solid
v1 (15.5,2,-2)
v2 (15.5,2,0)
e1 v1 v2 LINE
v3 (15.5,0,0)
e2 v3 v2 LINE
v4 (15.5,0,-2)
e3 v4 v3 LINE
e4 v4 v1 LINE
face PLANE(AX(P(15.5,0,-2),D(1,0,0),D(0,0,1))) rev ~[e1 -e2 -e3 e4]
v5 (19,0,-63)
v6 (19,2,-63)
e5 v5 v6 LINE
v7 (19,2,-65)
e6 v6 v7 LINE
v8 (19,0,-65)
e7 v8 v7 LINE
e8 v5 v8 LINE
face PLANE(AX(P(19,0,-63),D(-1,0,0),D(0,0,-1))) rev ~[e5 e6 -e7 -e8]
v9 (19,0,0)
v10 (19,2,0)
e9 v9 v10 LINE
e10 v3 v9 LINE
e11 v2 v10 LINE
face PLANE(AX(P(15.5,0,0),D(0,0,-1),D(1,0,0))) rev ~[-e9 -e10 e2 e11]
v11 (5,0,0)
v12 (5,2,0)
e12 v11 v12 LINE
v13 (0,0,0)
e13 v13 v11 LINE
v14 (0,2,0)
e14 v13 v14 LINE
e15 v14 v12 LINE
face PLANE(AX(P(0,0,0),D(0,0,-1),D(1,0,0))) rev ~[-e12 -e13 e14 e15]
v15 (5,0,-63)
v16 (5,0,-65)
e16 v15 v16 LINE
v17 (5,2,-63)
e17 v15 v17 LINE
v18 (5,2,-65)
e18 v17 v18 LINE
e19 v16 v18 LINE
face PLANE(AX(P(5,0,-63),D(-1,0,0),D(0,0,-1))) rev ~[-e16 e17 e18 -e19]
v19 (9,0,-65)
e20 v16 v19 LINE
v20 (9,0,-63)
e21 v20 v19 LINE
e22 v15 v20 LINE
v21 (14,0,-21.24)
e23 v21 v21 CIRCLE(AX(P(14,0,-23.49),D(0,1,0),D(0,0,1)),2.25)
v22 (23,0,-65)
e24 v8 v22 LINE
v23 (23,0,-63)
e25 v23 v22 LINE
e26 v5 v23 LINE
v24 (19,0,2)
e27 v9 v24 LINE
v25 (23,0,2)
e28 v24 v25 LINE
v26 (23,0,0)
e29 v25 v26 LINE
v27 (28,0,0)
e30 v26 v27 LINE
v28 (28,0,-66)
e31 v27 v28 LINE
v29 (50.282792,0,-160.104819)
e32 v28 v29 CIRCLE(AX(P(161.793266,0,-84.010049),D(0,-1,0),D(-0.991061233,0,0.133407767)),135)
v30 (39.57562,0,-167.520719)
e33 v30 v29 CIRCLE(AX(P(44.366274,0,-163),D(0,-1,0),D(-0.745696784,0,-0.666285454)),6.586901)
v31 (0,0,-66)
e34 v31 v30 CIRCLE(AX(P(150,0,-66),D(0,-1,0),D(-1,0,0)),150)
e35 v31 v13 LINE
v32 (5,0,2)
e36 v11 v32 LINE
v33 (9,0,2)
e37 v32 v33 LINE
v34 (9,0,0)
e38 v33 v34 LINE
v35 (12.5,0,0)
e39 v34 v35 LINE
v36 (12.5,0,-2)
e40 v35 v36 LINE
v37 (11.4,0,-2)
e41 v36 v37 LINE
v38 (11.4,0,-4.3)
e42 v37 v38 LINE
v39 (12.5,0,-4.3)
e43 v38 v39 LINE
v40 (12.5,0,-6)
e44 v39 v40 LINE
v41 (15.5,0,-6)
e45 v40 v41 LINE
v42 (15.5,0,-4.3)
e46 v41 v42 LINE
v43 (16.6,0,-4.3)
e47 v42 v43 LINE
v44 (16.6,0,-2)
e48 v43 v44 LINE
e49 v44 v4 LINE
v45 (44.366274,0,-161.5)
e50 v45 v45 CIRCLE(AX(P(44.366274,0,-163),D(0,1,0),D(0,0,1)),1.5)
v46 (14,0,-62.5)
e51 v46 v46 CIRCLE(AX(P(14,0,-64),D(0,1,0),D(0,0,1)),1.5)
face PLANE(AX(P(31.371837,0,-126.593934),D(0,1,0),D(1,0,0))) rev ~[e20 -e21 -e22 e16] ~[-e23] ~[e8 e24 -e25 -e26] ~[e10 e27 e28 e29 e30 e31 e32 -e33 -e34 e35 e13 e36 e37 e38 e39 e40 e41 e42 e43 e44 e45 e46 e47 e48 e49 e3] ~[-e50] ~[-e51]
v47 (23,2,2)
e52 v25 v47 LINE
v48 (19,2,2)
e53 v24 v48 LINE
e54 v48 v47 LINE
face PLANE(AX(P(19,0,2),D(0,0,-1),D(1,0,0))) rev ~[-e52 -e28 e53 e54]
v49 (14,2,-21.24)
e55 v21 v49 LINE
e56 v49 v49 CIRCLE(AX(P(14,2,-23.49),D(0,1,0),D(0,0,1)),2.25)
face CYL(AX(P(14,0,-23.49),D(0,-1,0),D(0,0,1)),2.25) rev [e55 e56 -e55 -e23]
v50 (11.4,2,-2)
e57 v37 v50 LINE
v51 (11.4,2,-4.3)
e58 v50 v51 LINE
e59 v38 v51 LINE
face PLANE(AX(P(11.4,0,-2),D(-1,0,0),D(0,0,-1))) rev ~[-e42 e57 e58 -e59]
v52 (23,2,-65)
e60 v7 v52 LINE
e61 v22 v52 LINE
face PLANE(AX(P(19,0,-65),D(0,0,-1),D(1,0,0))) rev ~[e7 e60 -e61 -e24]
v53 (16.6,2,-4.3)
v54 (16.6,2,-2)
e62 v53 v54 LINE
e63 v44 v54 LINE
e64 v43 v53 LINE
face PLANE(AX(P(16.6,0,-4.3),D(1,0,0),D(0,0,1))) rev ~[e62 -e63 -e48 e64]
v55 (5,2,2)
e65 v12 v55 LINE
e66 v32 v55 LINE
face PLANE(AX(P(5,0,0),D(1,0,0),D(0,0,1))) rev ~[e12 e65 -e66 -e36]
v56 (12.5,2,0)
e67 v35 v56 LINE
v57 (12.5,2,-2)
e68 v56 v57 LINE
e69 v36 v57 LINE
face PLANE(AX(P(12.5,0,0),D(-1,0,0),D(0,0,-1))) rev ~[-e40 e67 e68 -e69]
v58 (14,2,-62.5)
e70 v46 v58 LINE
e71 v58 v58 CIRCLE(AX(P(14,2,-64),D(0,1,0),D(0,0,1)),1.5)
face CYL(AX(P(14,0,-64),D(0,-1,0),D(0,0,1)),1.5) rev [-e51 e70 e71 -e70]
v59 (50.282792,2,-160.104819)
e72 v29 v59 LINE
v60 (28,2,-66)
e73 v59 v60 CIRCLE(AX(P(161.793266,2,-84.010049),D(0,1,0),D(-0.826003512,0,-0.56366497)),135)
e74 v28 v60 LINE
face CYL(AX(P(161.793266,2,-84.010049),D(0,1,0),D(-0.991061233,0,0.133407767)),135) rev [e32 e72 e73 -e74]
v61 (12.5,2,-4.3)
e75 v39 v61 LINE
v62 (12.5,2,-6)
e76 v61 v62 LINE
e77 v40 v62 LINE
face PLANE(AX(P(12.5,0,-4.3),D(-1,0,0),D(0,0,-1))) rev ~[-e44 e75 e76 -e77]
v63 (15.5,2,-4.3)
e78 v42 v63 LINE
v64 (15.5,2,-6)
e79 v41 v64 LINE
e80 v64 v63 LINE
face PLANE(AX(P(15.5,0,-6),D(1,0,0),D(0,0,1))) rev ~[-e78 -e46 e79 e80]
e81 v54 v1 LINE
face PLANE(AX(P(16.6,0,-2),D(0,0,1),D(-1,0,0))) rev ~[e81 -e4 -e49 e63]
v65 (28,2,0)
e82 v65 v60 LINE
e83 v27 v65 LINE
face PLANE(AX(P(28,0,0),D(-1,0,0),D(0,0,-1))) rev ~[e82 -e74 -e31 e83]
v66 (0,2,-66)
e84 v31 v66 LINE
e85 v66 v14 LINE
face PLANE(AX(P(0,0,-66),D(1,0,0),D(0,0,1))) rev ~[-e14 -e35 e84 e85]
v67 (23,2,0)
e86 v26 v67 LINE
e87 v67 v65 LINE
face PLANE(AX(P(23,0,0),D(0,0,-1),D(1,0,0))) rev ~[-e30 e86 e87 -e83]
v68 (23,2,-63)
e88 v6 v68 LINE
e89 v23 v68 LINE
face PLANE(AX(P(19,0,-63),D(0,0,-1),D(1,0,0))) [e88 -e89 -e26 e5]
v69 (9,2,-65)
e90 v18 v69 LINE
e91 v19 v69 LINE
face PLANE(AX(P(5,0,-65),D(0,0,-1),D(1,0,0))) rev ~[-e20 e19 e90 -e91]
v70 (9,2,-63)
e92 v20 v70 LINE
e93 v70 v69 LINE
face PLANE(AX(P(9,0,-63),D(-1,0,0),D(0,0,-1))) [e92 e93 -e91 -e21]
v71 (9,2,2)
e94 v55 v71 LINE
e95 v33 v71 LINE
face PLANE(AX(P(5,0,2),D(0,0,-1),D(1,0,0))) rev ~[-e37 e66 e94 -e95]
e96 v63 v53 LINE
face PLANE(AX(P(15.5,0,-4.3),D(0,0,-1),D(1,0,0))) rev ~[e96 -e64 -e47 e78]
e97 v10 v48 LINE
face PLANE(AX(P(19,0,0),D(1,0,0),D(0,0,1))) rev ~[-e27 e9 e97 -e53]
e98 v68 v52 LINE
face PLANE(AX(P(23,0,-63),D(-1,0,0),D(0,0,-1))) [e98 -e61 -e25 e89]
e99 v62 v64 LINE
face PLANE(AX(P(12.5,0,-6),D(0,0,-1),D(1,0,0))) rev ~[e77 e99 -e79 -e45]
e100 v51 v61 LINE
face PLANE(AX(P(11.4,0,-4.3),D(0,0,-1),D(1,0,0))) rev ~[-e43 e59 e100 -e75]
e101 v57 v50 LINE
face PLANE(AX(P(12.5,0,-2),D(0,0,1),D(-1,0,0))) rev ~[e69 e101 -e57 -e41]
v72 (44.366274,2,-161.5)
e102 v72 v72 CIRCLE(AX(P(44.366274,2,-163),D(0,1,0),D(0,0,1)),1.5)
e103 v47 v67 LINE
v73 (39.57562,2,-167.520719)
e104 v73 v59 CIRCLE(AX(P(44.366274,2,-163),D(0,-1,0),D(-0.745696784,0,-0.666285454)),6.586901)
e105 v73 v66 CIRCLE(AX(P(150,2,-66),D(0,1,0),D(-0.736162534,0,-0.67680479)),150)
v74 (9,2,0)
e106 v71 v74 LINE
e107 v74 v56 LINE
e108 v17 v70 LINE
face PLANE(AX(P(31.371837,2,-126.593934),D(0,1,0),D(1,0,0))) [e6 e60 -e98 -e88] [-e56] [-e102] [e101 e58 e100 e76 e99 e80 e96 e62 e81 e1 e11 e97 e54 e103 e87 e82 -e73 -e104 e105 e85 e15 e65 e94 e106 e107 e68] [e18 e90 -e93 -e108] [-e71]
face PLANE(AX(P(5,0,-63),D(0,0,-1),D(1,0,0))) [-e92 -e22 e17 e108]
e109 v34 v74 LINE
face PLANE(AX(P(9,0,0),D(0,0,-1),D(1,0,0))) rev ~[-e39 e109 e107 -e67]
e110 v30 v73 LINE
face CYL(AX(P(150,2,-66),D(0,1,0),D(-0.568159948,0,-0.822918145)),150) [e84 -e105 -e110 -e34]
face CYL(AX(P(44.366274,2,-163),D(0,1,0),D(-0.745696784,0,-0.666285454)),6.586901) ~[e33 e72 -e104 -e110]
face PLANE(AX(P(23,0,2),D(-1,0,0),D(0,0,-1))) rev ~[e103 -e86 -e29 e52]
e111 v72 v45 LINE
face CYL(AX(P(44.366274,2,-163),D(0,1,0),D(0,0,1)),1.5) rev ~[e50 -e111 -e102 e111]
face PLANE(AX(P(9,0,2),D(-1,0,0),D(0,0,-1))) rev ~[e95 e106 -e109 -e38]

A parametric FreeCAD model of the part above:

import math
import FreeCAD as App
import Part
import Sketcher

V = App.Vector
Q = App.Units.Quantity

doc = App.newDocument("Part")
body = doc.addObject("PartDesign::Body", "Body")

# Sketch on XZ plane
sketch1 = body.newObject("Sketcher::SketchObject", "Sketch")
sketch1.AttachmentSupport = (doc.getObject("XZ_Plane"), [""])
sketch1.MapMode = "FlatFace"
sketch1.addGeometry(Part.LineSegment(V(0, 0, 0), V(5, 0, 0)), False)
sketch1.addGeometry(Part.LineSegment(V(5, 0, 0), V(5, 2, 0)), False)
sketch1.addGeometry(Part.LineSegment(V(5, 2, 0), V(9, 2, 0)), False)
sketch1.addGeometry(Part.LineSegment(V(9, 2, 0), V(9, 0, 0)), False)
sketch1.addGeometry(Part.LineSegment(V(9, 0, 0), V(12.5, 0, 0)), False)
sketch1.addGeometry(Part.LineSegment(V(12.5, 0, 0), V(12.5, -2, 0)), False)
sketch1.addGeometry(Part.LineSegment(V(12.5, -2, 0), V(11.4, -2, 0)), False)
sketch1.addGeometry(Part.LineSegment(V(11.4, -2, 0), V(11.4, -4.3, 0)), False)
sketch1.addGeometry(Part.LineSegment(V(11.4, -4.3, 0), V(12.5, -4.3, 0)), False)
sketch1.addGeometry(Part.LineSegment(V(12.5, -4.3, 0), V(12.5, -6, 0)), False)
sketch1.addGeometry(Part.LineSegment(V(12.5, -6, 0), V(15.5, -6, 0)), False)
sketch1.addGeometry(Part.LineSegment(V(15.5, -6, 0), V(15.5, -4.3, 0)), False)
sketch1.addGeometry(Part.LineSegment(V(15.5, -4.3, 0), V(16.6, -4.3, 0)), False)
sketch1.addGeometry(Part.LineSegment(V(16.6, -4.3, 0), V(16.6, -2, 0)), False)
sketch1.addGeometry(Part.LineSegment(V(16.6, -2, 0), V(15.5, -2, 0)), False)
sketch1.addGeometry(Part.LineSegment(V(15.5, -2, 0), V(15.5, 0, 0)), False)
sketch1.addGeometry(Part.LineSegment(V(15.5, 0, 0), V(19, 0, 0)), False)
sketch1.addGeometry(Part.LineSegment(V(19, 0, 0), V(19, 2, 0)), False)
sketch1.addGeometry(Part.LineSegment(V(19, 2, 0), V(23, 2, 0)), False)
sketch1.addGeometry(Part.LineSegment(V(23, 2, 0), V(23, 0, 0)), False)
sketch1.addGeometry(Part.LineSegment(V(23, 0, 0), V(28, 0, 0)), False)
sketch1.addGeometry(Part.LineSegment(V(28, 0, 0), V(28, -66, 0)), False)
sketch1.addGeometry(Part.LineSegment(V(28, -66, 0), V(0, -66, 0)), False)
sketch1.addGeometry(Part.LineSegment(V(0, -66, 0), V(0, 0, 0)), False)
sketch1.addGeometry(Part.Circle(V(14, -23.5, 0), V(0, 0, 1), 2.2), False)
sketch1.addGeometry(Part.LineSegment(V(9, -63, 0), V(5, -63, 0)), False)
sketch1.addGeometry(Part.LineSegment(V(5, -63, 0), V(5, -65, 0)), False)
sketch1.addGeometry(Part.LineSegment(V(5, -65, 0), V(9, -65, 0)), False)
sketch1.addGeometry(Part.LineSegment(V(9, -65, 0), V(9, -63, 0)), False)
sketch1.addGeometry(Part.Circle(V(14, -64, 0), V(0, 0, 1), 1.5), False)
sketch1.addGeometry(Part.LineSegment(V(23, -63, 0), V(19, -63, 0)), False)
sketch1.addGeometry(Part.LineSegment(V(19, -63, 0), V(19, -65, 0)), False)
sketch1.addGeometry(Part.LineSegment(V(19, -65, 0), V(23, -65, 0)), False)
sketch1.addGeometry(Part.LineSegment(V(23, -65, 0), V(23, -63, 0)), False)
sketch1.addConstraint(Sketcher.Constraint("Coincident", 0, 2, 1, 1))
sketch1.addConstraint(Sketcher.Constraint("Coincident", 1, 2, 2, 1))
sketch1.addConstraint(Sketcher.Constraint("Coincident", 2, 2, 3, 1))
sketch1.addConstraint(Sketcher.Constraint("Coincident", 3, 2, 4, 1))
sketch1.addConstraint(Sketcher.Constraint("Coincident", 4, 2, 5, 1))
sketch1.addConstraint(Sketcher.Constraint("Coincident", 5, 2, 6, 1))
sketch1.addConstraint(Sketcher.Constraint("Coincident", 6, 2, 7, 1))
sketch1.addConstraint(Sketcher.Constraint("Coincident", 7, 2, 8, 1))
sketch1.addConstraint(Sketcher.Constraint("Coincident", 8, 2, 9, 1))
sketch1.addConstraint(Sketcher.Constraint("Coincident", 9, 2, 10, 1))
sketch1.addConstraint(Sketcher.Constraint("Coincident", 10, 2, 11, 1))
sketch1.addConstraint(Sketcher.Constraint("Coincident", 11, 2, 12, 1))
sketch1.addConstraint(Sketcher.Constraint("Coincident", 12, 2, 13, 1))
sketch1.addConstraint(Sketcher.Constraint("Coincident", 13, 2, 14, 1))
sketch1.addConstraint(Sketcher.Constraint("Coincident", 14, 2, 15, 1))
sketch1.addConstraint(Sketcher.Constraint("Coincident", 15, 2, 16, 1))
sketch1.addConstraint(Sketcher.Constraint("Coincident", 16, 2, 17, 1))
sketch1.addConstraint(Sketcher.Constraint("Coincident", 17, 2, 18, 1))
sketch1.addConstraint(Sketcher.Constraint("Coincident", 18, 2, 19, 1))
sketch1.addConstraint(Sketcher.Constraint("Coincident", 19, 2, 20, 1))
sketch1.addConstraint(Sketcher.Constraint("Coincident", 20, 2, 21, 1))
sketch1.addConstraint(Sketcher.Constraint("Coincident", 21, 2, 22, 1))
sketch1.addConstraint(Sketcher.Constraint("Coincident", 22, 2, 23, 1))
sketch1.addConstraint(Sketcher.Constraint("Coincident", 23, 2, 0, 1))
sketch1.addConstraint(Sketcher.Constraint("Coincident", 25, 2, 26, 1))
sketch1.addConstraint(Sketcher.Constraint("Coincident", 26, 2, 27, 1))
sketch1.addConstraint(Sketcher.Constraint("Coincident", 27, 2, 28, 1))
sketch1.addConstraint(Sketcher.Constraint("Coincident", 28, 2, 25, 1))
sketch1.addConstraint(Sketcher.Constraint("Coincident", 30, 2, 31, 1))
sketch1.addConstraint(Sketcher.Constraint("Coincident", 31, 2, 32, 1))
sketch1.addConstraint(Sketcher.Constraint("Coincident", 32, 2, 33, 1))
sketch1.addConstraint(Sketcher.Constraint("Coincident", 33, 2, 30, 1))
sketch1.addConstraint(Sketcher.Constraint("Horizontal", 0))
sketch1.addConstraint(Sketcher.Constraint("Vertical", 1))
sketch1.addConstraint(Sketcher.Constraint("Horizontal", 2))
sketch1.addConstraint(Sketcher.Constraint("Vertical", 3))
sketch1.addConstraint(Sketcher.Constraint("Horizontal", 4))
sketch1.addConstraint(Sketcher.Constraint("Vertical", 5))
sketch1.addConstraint(Sketcher.Constraint("Horizontal", 6))
sketch1.addConstraint(Sketcher.Constraint("Vertical", 7))
sketch1.addConstraint(Sketcher.Constraint("Horizontal", 8))
sketch1.addConstraint(Sketcher.Constraint("Vertical", 9))
sketch1.addConstraint(Sketcher.Constraint("Horizontal", 10))
sketch1.addConstraint(Sketcher.Constraint("Vertical", 11))
sketch1.addConstraint(Sketcher.Constraint("Horizontal", 12))
sketch1.addConstraint(Sketcher.Constraint("Vertical", 13))
sketch1.addConstraint(Sketcher.Constraint("Horizontal", 14))
sketch1.addConstraint(Sketcher.Constraint("Vertical", 15))
sketch1.addConstraint(Sketcher.Constraint("Horizontal", 16))
sketch1.addConstraint(Sketcher.Constraint("Vertical", 17))
sketch1.addConstraint(Sketcher.Constraint("Horizontal", 18))
sketch1.addConstraint(Sketcher.Constraint("Vertical", 19))
sketch1.addConstraint(Sketcher.Constraint("Horizontal", 20))
sketch1.addConstraint(Sketcher.Constraint("Vertical", 21))
sketch1.addConstraint(Sketcher.Constraint("Horizontal", 22))
sketch1.addConstraint(Sketcher.Constraint("Vertical", 23))
sketch1.addConstraint(Sketcher.Constraint("Horizontal", 25))
sketch1.addConstraint(Sketcher.Constraint("Vertical", 26))
sketch1.addConstraint(Sketcher.Constraint("Horizontal", 27))
sketch1.addConstraint(Sketcher.Constraint("Vertical", 28))
sketch1.addConstraint(Sketcher.Constraint("Horizontal", 30))
sketch1.addConstraint(Sketcher.Constraint("Vertical", 31))
sketch1.addConstraint(Sketcher.Constraint("Horizontal", 32))
sketch1.addConstraint(Sketcher.Constraint("Vertical", 33))
sketch1.addConstraint(Sketcher.Constraint("Coincident", 23, 2, -1, 1))
sketch1.addConstraint(Sketcher.Constraint("PointOnObject", 3, 2, -1))
sketch1.addConstraint(Sketcher.Constraint("PointOnObject", 15, 2, -1))
sketch1.addConstraint(Sketcher.Constraint("PointOnObject", 19, 2, -1))
sketch1.addConstraint(Sketcher.Constraint("Horizontal", 8, 2, 11, 2))
sketch1.addConstraint(Sketcher.Constraint("Horizontal", 6, 2, 13, 2))
sketch1.addConstraint(Sketcher.Constraint("Horizontal", 2, 2, 17, 2))
sketch1.addConstraint(Sketcher.Constraint("Horizontal", 28, 2, 30, 2))
sketch1.addConstraint(Sketcher.Constraint("Horizontal", 27, 2, 31, 2))
sketch1.addConstraint(Sketcher.Constraint("Vertical", 24, 3, 29, 3))
sketch1.addConstraint(Sketcher.Constraint("Vertical", 5, 2, 8, 2))
sketch1.addConstraint(Sketcher.Constraint("Vertical", 11, 2, 14, 2))
sketch1.addConstraint(Sketcher.Constraint("Vertical", 1, 2, 25, 2))
sketch1.addConstraint(Sketcher.Constraint("Vertical", 3, 2, 27, 2))
sketch1.addConstraint(Sketcher.Constraint("Vertical", 17, 2, 30, 2))
sketch1.addConstraint(Sketcher.Constraint("Vertical", 19, 2, 32, 2))
sketch1.addConstraint(Sketcher.Constraint("Equal", 8, 12))
sketch1.addConstraint(Sketcher.Constraint("Equal", 4, 16))
sketch1.addConstraint(Sketcher.Constraint("Equal", 2, 18))
sketch1.addConstraint(Sketcher.Constraint("Equal", 0, 20))
sketch1.addConstraint(Sketcher.Constraint("Equal", 3, 5))
sketch1.addConstraint(Sketcher.Constraint("Equal", 19, 26))
sketch1.addConstraint(Sketcher.Constraint("Diameter", 29, Q("3 mm")))
sketch1.addConstraint(Sketcher.Constraint("Diameter", 24, Q("4.5 mm")))
sketch1.addConstraint(Sketcher.Constraint("DistanceX", 0, 1, 0, 2, Q("5 mm")))
sketch1.addConstraint(Sketcher.Constraint("DistanceX", 2, 1, 2, 2, Q("4 mm")))
sketch1.addConstraint(Sketcher.Constraint("DistanceX", 10, 1, 10, 2, Q("3 mm")))
sketch1.addConstraint(Sketcher.Constraint("DistanceX", 22, 2, 22, 1, Q("28 mm")))
sketch1.addConstraint(Sketcher.Constraint("DistanceY", 1, 1, 1, 2, Q("2 mm")))
sketch1.addConstraint(Sketcher.Constraint("DistanceY", 21, 2, 21, 1, Q("66 mm")))
sketch1.addConstraint(Sketcher.Constraint("DistanceX", 6, 2, 6, 1, Q("1.1 mm")))
sketch1.addConstraint(Sketcher.Constraint("DistanceY", 7, 2, 7, 1, Q("2.3 mm")))
sketch1.addConstraint(Sketcher.Constraint("DistanceY", 9, 2, 9, 1, Q("1.7 mm")))
sketch1.addConstraint(Sketcher.Constraint("DistanceX", -1, 1, 24, 3, Q("14 mm")))
sketch1.addConstraint(Sketcher.Constraint("DistanceY", 29, 3, -1, 1, Q("64 mm")))
sketch1.addConstraint(Sketcher.Constraint("DistanceY", 25, 2, -1, 1, Q("63 mm")))
sketch1.addConstraint(Sketcher.Constraint("DistanceY", 24, 3, -1, 1, Q("23.49 mm")))
pad1 = body.newObject("PartDesign::Pad", "Pad")
pad1.Profile = sketch1
pad1.Length = 2
pad1.Reversed = True

# Sketch on XZ plane
sketch2 = body.newObject("Sketcher::SketchObject", "Sketch001")
sketch2.AttachmentSupport = (doc.getObject("XZ_Plane"), [""])
sketch2.MapMode = "FlatFace"
sketch2.AttachmentOffset = App.Placement(V(0, 0, -2), App.Rotation())
sketch2.addGeometry(Part.LineSegment(V(0, -66, 0), V(28, -66, 0)), False)
sketch2.addGeometry(Part.ArcOfCircle(Part.Circle(V(161.8, -84, 0), V(0, 0, 1), 135), math.radians(172), math.radians(227)), False)
sketch2.addGeometry(Part.ArcOfCircle(Part.Circle(V(67.1, -186, 0), V(0, 0, 1), 4.2), math.radians(-125), math.radians(39)), False)
sketch2.addGeometry(Part.ArcOfCircle(Part.Circle(V(150, -66, 0), V(0, 0, 1), 150), math.radians(180), math.radians(235)), False)
sketch2.addConstraint(Sketcher.Constraint("Coincident", 0, 2, 1, 1))
sketch2.addConstraint(Sketcher.Constraint("Coincident", 1, 2, 2, 2))
sketch2.addConstraint(Sketcher.Constraint("Tangent", 2, 1, 3, 2))
sketch2.addConstraint(Sketcher.Constraint("Coincident", 3, 1, 0, 1))
sketch2.addConstraint(Sketcher.Constraint("Horizontal", 0))
sketch2.addConstraint(Sketcher.Constraint("PointOnObject", 3, 1, -2))
sketch2.addConstraint(Sketcher.Constraint("Horizontal", 3, 3, 0, 2))
sketch2.addConstraint(Sketcher.Constraint("Radius", 1, Q("135 mm")))
sketch2.addConstraint(Sketcher.Constraint("Radius", 3, Q("150 mm")))
sketch2.addConstraint(Sketcher.Constraint("DistanceX", 0, 1, 0, 2, Q("28 mm")))
sketch2.addConstraint(Sketcher.Constraint("DistanceY", 2, 3, -1, 1, Q("186 mm")))
sketch2.addConstraint(Sketcher.Constraint("DistanceY", 3, 3, -1, 1, Q("66 mm")))
sketch2.addConstraint(Sketcher.Constraint("Radius", 2, Q("4.177477 mm")))
sketch2.addConstraint(Sketcher.Constraint("DistanceY", 1, 3, -1, 1, Q("84.010049 mm")))
pad2 = body.newObject("PartDesign::Pad", "Pad001")
pad2.Profile = sketch2
pad2.Length = 2

# Sketch on XZ plane
sketch3 = body.newObject("Sketcher::SketchObject", "Sketch002")
sketch3.AttachmentSupport = (doc.getObject("XZ_Plane"), [""])
sketch3.MapMode = "FlatFace"
sketch3.AttachmentOffset = App.Placement(V(0, 0, -2), App.Rotation())
sketch3.addGeometry(Part.Circle(V(44.4, -163, 0), V(0, 0, 1), 1.5), False)
sketch3.addGeometry(Part.LineSegment(V(49.3, -158.6, 0), V(90.3, -196.3, 0)), False)
sketch3.addGeometry(Part.LineSegment(V(90.3, -196.3, 0), V(75.6, -212.4, 0)), False)
sketch3.addGeometry(Part.LineSegment(V(75.6, -212.4, 0), V(35.5, -175.6, 0)), False)
sketch3.addGeometry(Part.LineSegment(V(35.5, -175.6, 0), V(39.5, -167.4, 0)), False)
sketch3.addGeometry(Part.ArcOfCircle(Part.Circle(V(44.4, -163, 0), V(0, 0, 1), 6.6), math.radians(-138), math.radians(42)), False)
sketch3.addConstraint(Sketcher.Constraint("Coincident", 1, 2, 2, 1))
sketch3.addConstraint(Sketcher.Constraint("Coincident", 2, 2, 3, 1))
sketch3.addConstraint(Sketcher.Constraint("Coincident", 3, 2, 4, 1))
sketch3.addConstraint(Sketcher.Constraint("Coincident", 4, 2, 5, 1))
sketch3.addConstraint(Sketcher.Constraint("Coincident", 5, 2, 1, 1))
sketch3.addConstraint(Sketcher.Constraint("Coincident", 5, 3, 0, 3))
sketch3.addConstraint(Sketcher.Constraint("Perpendicular", 1, 2))
sketch3.addConstraint(Sketcher.Constraint("Perpendicular", 2, 3))
sketch3.addConstraint(Sketcher.Constraint("Diameter", 0, Q("3 mm")))
sketch3.addConstraint(Sketcher.Constraint("DistanceY", 0, 3, -1, 1, Q("163 mm")))
sketch3.addConstraint(Sketcher.Constraint("Radius", 5, Q("6.586901 mm")))
sketch3.addConstraint(Sketcher.Constraint("Distance", 2, Q("21.855678 mm")))
sketch3.addConstraint(Sketcher.Constraint("DistanceX", -1, 1, 1, 2, Q("90.336582 mm")))
sketch3.addConstraint(Sketcher.Constraint("DistanceY", 2, 2, -1, 1, Q("212.427782 mm")))
sketch3.addConstraint(Sketcher.Constraint("DistanceX", -1, 1, 3, 2, Q("35.469079 mm")))
sketch3.addConstraint(Sketcher.Constraint("DistanceX", 2, 2, 1, 2, Q("14.78657 mm")))
sketch3.addConstraint(Sketcher.Constraint("DistanceX", 0, 3, 2, 2, Q("31.183738 mm")))
sketch3.addConstraint(Sketcher.Constraint("DistanceX", 4, 2, 0, 3, Q("4.911831 mm")))
pocket1 = body.newObject("PartDesign::Pocket", "Pocket")
pocket1.Profile = sketch3
pocket1.Length = 2
pocket1.Reversed = True

doc.recompute()
